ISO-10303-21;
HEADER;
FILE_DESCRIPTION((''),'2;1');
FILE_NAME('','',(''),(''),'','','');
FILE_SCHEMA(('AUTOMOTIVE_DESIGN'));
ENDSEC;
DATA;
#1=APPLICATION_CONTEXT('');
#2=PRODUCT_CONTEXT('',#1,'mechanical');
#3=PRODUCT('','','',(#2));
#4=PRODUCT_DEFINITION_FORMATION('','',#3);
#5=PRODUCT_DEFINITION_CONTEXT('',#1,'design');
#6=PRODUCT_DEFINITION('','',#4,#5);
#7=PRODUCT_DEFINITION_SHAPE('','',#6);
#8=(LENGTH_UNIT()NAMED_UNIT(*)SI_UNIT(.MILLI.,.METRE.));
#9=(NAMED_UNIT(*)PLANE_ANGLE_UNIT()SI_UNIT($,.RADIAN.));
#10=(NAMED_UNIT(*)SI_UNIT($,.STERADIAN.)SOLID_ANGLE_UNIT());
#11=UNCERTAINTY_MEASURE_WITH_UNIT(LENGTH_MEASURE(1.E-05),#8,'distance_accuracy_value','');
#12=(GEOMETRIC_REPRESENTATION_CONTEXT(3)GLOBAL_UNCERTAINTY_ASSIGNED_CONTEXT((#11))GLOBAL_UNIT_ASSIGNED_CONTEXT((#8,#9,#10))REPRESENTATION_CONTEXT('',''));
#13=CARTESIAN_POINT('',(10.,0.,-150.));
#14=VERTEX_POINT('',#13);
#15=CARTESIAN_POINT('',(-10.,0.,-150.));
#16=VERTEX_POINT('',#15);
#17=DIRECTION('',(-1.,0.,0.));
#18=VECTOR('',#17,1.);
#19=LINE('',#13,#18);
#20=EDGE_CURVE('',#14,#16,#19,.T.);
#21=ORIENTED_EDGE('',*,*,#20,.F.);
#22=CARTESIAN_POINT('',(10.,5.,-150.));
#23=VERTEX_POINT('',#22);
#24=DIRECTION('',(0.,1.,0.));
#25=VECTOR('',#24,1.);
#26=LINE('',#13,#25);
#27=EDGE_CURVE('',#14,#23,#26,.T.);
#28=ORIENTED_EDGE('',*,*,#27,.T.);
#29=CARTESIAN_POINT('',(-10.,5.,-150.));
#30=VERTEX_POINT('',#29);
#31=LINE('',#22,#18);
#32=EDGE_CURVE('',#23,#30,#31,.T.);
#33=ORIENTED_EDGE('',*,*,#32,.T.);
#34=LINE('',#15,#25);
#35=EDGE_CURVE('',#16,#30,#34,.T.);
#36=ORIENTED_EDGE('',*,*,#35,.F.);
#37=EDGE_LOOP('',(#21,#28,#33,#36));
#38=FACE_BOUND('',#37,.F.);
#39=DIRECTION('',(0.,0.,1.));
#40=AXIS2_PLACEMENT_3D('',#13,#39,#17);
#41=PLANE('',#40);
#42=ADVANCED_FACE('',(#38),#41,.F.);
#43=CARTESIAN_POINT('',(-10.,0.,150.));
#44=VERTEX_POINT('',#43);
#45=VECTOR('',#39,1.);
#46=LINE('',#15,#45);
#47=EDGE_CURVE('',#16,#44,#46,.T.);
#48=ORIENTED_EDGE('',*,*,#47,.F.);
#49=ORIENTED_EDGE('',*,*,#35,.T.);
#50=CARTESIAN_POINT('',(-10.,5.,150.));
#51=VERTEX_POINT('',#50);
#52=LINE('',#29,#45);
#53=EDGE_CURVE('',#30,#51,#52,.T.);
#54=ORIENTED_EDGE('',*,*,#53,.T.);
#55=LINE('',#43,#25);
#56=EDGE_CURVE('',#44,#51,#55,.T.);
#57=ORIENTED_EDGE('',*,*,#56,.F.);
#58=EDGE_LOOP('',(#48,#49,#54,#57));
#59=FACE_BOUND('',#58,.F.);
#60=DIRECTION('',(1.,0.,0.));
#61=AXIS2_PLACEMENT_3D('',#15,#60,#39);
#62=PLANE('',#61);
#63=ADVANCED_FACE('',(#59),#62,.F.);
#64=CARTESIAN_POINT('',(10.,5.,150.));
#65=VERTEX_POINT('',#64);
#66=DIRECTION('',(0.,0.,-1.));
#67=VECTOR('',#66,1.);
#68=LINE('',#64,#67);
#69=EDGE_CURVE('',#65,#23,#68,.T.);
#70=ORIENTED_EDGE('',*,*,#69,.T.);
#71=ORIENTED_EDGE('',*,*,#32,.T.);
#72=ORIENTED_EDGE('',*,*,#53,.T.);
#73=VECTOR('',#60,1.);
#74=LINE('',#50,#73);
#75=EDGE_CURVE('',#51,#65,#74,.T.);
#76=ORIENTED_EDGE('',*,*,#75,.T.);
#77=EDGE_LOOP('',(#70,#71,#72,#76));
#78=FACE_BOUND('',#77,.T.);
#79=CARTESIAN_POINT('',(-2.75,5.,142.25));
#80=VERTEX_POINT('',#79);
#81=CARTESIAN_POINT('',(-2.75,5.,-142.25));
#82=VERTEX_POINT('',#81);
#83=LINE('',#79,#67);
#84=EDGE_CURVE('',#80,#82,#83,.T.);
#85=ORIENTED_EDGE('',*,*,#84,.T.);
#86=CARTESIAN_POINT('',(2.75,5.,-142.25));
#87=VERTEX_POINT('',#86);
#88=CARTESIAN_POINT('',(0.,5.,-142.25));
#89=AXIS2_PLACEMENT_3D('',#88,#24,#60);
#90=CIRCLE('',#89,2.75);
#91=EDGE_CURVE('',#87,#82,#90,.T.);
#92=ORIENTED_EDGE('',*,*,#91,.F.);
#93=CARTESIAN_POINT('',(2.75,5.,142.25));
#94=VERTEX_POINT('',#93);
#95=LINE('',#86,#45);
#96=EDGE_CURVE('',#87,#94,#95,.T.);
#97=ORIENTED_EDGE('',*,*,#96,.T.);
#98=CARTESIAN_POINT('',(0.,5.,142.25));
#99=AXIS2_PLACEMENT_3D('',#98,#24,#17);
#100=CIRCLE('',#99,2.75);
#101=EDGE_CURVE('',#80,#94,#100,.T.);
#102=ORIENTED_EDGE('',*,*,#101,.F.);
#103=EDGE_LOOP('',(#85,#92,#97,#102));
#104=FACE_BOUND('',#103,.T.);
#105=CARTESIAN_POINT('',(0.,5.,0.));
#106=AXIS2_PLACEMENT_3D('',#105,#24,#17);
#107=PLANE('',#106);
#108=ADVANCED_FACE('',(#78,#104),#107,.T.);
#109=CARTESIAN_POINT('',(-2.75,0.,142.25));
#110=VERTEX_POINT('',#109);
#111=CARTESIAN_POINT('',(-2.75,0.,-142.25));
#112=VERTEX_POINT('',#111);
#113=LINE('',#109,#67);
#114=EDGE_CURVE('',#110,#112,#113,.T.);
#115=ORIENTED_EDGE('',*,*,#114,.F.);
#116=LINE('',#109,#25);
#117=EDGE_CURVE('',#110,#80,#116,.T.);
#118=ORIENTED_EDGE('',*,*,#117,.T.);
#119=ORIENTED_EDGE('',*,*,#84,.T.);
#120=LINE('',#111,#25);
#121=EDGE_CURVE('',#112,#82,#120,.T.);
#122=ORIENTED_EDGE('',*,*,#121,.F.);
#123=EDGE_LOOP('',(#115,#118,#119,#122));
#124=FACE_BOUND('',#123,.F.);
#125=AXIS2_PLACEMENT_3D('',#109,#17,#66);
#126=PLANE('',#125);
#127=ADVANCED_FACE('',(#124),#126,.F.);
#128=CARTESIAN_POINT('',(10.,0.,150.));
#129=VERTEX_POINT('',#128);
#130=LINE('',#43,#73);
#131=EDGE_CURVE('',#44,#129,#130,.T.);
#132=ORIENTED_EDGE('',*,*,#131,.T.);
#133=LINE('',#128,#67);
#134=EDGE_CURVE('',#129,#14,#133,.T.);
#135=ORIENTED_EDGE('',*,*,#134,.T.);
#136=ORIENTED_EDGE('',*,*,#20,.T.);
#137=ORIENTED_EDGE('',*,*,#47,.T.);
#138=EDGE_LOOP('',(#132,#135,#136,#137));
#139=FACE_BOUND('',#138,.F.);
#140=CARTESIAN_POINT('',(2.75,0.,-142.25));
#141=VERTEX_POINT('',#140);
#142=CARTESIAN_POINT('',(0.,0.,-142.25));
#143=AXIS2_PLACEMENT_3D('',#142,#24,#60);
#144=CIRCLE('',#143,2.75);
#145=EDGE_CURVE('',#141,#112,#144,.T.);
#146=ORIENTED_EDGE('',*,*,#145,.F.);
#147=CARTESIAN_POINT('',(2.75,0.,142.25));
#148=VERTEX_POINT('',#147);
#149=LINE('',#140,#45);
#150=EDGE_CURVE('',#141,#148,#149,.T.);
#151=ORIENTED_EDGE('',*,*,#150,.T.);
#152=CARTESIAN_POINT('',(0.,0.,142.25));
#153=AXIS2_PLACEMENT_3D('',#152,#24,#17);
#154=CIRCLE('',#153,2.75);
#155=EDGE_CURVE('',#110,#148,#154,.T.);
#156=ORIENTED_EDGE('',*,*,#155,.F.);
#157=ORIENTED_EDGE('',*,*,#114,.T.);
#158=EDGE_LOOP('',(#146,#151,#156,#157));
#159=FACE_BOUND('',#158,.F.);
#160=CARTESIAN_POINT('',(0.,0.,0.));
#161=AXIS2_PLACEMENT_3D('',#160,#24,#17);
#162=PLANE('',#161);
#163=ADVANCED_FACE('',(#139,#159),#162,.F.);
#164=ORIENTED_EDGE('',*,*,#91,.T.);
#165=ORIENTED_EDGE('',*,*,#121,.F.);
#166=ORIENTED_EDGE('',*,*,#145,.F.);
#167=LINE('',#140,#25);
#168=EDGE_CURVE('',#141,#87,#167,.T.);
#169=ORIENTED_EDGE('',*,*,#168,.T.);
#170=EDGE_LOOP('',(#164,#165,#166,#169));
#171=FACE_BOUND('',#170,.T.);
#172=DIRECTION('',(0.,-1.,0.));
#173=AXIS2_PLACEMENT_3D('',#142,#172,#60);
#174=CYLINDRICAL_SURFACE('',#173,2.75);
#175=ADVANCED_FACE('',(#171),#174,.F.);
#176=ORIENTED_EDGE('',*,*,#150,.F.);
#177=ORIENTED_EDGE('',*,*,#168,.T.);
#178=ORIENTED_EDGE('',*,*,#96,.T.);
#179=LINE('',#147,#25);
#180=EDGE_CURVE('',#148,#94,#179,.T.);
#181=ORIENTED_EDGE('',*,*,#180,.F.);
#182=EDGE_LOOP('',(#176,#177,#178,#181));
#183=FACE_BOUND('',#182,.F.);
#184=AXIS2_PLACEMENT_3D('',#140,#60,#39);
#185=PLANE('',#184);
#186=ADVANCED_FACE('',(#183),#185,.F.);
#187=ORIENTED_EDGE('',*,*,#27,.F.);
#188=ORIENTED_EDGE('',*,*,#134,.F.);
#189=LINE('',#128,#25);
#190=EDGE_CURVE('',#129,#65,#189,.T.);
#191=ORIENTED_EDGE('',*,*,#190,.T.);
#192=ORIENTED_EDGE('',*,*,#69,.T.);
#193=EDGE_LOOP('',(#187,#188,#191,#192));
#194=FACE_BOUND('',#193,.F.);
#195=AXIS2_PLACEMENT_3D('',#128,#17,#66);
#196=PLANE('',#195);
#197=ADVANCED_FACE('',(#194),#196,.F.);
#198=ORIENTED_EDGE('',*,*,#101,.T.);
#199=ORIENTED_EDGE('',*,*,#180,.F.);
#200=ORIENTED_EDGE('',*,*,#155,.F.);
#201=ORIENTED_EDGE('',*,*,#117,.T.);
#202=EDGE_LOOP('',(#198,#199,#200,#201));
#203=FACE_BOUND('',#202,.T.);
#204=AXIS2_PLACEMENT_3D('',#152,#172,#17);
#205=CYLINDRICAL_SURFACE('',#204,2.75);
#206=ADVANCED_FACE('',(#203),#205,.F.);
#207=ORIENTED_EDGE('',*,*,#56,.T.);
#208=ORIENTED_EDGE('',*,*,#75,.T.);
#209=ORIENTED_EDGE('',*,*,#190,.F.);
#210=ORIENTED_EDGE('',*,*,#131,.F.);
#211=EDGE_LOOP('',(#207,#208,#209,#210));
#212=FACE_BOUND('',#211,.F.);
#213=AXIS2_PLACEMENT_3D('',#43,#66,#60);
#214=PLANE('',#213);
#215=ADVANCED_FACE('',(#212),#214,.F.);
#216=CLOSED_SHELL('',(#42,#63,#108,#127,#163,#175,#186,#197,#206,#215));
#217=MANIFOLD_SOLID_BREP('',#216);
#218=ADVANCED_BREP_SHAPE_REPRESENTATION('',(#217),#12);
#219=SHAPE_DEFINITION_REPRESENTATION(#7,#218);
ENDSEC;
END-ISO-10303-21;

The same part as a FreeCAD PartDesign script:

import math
import FreeCAD as App
import Part
import Sketcher
from FreeCAD import Vector


def add_polygon(sketch, points):
    """Adds a closed chain of lines whose ends are joined by coincident constraints."""
    first, n = sketch.GeometryCount, len(points)
    for a, b in zip(points, points[1:] + points[:1]):
        sketch.addGeometry(Part.LineSegment(App.Vector(*a, 0), App.Vector(*b, 0)), False)
    for i in range(n):
        sketch.addConstraint(Sketcher.Constraint("Coincident", first + i, 2, first + (i + 1) % n, 1))

doc = App.newDocument("Part")
body = doc.addObject("PartDesign::Body", "Body")

# Sketch on XZ plane
sketch1 = body.newObject("Sketcher::SketchObject", "Sketch")
sketch1.AttachmentSupport = (doc.getObject("XZ_Plane"), [""])
sketch1.MapMode = "FlatFace"
add_polygon(sketch1, [(10, 150), (10, -150), (-10, -150), (-10, 150)])  # lines 0-3
sketch1.addGeometry(Part.ArcOfCircle(Part.Circle(Vector(0, 142.2, 0), Vector(0, 0, 1), 2.8), math.radians(0), math.radians(180)), False)  # 4
sketch1.addGeometry(Part.LineSegment(Vector(-2.8, 142.2, 0), Vector(-2.8, -142.2, 0)), False)  # 5
sketch1.addGeometry(Part.ArcOfCircle(Part.Circle(Vector(0, -142.2, 0), Vector(0, 0, 1), 2.8), math.radians(180), math.radians(360)), False)  # 6
sketch1.addGeometry(Part.LineSegment(Vector(2.8, -142.2, 0), Vector(2.8, 142.2, 0)), False)  # 7
sketch1.addConstraint([
    Sketcher.Constraint("Tangent", 4, 2, 5, 1),
    Sketcher.Constraint("Tangent", 5, 2, 6, 1),
    Sketcher.Constraint("Tangent", 6, 2, 7, 1),
    Sketcher.Constraint("Tangent", 7, 2, 4, 1),
    Sketcher.Constraint("Vertical", 0),
    Sketcher.Constraint("Horizontal", 1),
    Sketcher.Constraint("Vertical", 2),
    Sketcher.Constraint("Horizontal", 3),
    Sketcher.Constraint("Vertical", 5),
    Sketcher.Constraint("Vertical", 7),
    Sketcher.Constraint("Symmetric", 4, 3, 6, 3, -1, 1),
    Sketcher.Constraint("Symmetric", 0, 2, 2, 2, -1, 1),
    Sketcher.Constraint("DistanceX", 1, 2, 1, 1, 20.0),
    Sketcher.Constraint("DistanceY", 0, 2, 0, 1, 300.0),
    Sketcher.Constraint("Radius", 4, 2.75),
    Sketcher.Constraint("DistanceY", 5, 2, 5, 1, 284.5),
])
pad1 = body.newObject("PartDesign::Pad", "Pad")
pad1.Profile = sketch1
pad1.Length = 5
pad1.Reversed = True

doc.recompute()
